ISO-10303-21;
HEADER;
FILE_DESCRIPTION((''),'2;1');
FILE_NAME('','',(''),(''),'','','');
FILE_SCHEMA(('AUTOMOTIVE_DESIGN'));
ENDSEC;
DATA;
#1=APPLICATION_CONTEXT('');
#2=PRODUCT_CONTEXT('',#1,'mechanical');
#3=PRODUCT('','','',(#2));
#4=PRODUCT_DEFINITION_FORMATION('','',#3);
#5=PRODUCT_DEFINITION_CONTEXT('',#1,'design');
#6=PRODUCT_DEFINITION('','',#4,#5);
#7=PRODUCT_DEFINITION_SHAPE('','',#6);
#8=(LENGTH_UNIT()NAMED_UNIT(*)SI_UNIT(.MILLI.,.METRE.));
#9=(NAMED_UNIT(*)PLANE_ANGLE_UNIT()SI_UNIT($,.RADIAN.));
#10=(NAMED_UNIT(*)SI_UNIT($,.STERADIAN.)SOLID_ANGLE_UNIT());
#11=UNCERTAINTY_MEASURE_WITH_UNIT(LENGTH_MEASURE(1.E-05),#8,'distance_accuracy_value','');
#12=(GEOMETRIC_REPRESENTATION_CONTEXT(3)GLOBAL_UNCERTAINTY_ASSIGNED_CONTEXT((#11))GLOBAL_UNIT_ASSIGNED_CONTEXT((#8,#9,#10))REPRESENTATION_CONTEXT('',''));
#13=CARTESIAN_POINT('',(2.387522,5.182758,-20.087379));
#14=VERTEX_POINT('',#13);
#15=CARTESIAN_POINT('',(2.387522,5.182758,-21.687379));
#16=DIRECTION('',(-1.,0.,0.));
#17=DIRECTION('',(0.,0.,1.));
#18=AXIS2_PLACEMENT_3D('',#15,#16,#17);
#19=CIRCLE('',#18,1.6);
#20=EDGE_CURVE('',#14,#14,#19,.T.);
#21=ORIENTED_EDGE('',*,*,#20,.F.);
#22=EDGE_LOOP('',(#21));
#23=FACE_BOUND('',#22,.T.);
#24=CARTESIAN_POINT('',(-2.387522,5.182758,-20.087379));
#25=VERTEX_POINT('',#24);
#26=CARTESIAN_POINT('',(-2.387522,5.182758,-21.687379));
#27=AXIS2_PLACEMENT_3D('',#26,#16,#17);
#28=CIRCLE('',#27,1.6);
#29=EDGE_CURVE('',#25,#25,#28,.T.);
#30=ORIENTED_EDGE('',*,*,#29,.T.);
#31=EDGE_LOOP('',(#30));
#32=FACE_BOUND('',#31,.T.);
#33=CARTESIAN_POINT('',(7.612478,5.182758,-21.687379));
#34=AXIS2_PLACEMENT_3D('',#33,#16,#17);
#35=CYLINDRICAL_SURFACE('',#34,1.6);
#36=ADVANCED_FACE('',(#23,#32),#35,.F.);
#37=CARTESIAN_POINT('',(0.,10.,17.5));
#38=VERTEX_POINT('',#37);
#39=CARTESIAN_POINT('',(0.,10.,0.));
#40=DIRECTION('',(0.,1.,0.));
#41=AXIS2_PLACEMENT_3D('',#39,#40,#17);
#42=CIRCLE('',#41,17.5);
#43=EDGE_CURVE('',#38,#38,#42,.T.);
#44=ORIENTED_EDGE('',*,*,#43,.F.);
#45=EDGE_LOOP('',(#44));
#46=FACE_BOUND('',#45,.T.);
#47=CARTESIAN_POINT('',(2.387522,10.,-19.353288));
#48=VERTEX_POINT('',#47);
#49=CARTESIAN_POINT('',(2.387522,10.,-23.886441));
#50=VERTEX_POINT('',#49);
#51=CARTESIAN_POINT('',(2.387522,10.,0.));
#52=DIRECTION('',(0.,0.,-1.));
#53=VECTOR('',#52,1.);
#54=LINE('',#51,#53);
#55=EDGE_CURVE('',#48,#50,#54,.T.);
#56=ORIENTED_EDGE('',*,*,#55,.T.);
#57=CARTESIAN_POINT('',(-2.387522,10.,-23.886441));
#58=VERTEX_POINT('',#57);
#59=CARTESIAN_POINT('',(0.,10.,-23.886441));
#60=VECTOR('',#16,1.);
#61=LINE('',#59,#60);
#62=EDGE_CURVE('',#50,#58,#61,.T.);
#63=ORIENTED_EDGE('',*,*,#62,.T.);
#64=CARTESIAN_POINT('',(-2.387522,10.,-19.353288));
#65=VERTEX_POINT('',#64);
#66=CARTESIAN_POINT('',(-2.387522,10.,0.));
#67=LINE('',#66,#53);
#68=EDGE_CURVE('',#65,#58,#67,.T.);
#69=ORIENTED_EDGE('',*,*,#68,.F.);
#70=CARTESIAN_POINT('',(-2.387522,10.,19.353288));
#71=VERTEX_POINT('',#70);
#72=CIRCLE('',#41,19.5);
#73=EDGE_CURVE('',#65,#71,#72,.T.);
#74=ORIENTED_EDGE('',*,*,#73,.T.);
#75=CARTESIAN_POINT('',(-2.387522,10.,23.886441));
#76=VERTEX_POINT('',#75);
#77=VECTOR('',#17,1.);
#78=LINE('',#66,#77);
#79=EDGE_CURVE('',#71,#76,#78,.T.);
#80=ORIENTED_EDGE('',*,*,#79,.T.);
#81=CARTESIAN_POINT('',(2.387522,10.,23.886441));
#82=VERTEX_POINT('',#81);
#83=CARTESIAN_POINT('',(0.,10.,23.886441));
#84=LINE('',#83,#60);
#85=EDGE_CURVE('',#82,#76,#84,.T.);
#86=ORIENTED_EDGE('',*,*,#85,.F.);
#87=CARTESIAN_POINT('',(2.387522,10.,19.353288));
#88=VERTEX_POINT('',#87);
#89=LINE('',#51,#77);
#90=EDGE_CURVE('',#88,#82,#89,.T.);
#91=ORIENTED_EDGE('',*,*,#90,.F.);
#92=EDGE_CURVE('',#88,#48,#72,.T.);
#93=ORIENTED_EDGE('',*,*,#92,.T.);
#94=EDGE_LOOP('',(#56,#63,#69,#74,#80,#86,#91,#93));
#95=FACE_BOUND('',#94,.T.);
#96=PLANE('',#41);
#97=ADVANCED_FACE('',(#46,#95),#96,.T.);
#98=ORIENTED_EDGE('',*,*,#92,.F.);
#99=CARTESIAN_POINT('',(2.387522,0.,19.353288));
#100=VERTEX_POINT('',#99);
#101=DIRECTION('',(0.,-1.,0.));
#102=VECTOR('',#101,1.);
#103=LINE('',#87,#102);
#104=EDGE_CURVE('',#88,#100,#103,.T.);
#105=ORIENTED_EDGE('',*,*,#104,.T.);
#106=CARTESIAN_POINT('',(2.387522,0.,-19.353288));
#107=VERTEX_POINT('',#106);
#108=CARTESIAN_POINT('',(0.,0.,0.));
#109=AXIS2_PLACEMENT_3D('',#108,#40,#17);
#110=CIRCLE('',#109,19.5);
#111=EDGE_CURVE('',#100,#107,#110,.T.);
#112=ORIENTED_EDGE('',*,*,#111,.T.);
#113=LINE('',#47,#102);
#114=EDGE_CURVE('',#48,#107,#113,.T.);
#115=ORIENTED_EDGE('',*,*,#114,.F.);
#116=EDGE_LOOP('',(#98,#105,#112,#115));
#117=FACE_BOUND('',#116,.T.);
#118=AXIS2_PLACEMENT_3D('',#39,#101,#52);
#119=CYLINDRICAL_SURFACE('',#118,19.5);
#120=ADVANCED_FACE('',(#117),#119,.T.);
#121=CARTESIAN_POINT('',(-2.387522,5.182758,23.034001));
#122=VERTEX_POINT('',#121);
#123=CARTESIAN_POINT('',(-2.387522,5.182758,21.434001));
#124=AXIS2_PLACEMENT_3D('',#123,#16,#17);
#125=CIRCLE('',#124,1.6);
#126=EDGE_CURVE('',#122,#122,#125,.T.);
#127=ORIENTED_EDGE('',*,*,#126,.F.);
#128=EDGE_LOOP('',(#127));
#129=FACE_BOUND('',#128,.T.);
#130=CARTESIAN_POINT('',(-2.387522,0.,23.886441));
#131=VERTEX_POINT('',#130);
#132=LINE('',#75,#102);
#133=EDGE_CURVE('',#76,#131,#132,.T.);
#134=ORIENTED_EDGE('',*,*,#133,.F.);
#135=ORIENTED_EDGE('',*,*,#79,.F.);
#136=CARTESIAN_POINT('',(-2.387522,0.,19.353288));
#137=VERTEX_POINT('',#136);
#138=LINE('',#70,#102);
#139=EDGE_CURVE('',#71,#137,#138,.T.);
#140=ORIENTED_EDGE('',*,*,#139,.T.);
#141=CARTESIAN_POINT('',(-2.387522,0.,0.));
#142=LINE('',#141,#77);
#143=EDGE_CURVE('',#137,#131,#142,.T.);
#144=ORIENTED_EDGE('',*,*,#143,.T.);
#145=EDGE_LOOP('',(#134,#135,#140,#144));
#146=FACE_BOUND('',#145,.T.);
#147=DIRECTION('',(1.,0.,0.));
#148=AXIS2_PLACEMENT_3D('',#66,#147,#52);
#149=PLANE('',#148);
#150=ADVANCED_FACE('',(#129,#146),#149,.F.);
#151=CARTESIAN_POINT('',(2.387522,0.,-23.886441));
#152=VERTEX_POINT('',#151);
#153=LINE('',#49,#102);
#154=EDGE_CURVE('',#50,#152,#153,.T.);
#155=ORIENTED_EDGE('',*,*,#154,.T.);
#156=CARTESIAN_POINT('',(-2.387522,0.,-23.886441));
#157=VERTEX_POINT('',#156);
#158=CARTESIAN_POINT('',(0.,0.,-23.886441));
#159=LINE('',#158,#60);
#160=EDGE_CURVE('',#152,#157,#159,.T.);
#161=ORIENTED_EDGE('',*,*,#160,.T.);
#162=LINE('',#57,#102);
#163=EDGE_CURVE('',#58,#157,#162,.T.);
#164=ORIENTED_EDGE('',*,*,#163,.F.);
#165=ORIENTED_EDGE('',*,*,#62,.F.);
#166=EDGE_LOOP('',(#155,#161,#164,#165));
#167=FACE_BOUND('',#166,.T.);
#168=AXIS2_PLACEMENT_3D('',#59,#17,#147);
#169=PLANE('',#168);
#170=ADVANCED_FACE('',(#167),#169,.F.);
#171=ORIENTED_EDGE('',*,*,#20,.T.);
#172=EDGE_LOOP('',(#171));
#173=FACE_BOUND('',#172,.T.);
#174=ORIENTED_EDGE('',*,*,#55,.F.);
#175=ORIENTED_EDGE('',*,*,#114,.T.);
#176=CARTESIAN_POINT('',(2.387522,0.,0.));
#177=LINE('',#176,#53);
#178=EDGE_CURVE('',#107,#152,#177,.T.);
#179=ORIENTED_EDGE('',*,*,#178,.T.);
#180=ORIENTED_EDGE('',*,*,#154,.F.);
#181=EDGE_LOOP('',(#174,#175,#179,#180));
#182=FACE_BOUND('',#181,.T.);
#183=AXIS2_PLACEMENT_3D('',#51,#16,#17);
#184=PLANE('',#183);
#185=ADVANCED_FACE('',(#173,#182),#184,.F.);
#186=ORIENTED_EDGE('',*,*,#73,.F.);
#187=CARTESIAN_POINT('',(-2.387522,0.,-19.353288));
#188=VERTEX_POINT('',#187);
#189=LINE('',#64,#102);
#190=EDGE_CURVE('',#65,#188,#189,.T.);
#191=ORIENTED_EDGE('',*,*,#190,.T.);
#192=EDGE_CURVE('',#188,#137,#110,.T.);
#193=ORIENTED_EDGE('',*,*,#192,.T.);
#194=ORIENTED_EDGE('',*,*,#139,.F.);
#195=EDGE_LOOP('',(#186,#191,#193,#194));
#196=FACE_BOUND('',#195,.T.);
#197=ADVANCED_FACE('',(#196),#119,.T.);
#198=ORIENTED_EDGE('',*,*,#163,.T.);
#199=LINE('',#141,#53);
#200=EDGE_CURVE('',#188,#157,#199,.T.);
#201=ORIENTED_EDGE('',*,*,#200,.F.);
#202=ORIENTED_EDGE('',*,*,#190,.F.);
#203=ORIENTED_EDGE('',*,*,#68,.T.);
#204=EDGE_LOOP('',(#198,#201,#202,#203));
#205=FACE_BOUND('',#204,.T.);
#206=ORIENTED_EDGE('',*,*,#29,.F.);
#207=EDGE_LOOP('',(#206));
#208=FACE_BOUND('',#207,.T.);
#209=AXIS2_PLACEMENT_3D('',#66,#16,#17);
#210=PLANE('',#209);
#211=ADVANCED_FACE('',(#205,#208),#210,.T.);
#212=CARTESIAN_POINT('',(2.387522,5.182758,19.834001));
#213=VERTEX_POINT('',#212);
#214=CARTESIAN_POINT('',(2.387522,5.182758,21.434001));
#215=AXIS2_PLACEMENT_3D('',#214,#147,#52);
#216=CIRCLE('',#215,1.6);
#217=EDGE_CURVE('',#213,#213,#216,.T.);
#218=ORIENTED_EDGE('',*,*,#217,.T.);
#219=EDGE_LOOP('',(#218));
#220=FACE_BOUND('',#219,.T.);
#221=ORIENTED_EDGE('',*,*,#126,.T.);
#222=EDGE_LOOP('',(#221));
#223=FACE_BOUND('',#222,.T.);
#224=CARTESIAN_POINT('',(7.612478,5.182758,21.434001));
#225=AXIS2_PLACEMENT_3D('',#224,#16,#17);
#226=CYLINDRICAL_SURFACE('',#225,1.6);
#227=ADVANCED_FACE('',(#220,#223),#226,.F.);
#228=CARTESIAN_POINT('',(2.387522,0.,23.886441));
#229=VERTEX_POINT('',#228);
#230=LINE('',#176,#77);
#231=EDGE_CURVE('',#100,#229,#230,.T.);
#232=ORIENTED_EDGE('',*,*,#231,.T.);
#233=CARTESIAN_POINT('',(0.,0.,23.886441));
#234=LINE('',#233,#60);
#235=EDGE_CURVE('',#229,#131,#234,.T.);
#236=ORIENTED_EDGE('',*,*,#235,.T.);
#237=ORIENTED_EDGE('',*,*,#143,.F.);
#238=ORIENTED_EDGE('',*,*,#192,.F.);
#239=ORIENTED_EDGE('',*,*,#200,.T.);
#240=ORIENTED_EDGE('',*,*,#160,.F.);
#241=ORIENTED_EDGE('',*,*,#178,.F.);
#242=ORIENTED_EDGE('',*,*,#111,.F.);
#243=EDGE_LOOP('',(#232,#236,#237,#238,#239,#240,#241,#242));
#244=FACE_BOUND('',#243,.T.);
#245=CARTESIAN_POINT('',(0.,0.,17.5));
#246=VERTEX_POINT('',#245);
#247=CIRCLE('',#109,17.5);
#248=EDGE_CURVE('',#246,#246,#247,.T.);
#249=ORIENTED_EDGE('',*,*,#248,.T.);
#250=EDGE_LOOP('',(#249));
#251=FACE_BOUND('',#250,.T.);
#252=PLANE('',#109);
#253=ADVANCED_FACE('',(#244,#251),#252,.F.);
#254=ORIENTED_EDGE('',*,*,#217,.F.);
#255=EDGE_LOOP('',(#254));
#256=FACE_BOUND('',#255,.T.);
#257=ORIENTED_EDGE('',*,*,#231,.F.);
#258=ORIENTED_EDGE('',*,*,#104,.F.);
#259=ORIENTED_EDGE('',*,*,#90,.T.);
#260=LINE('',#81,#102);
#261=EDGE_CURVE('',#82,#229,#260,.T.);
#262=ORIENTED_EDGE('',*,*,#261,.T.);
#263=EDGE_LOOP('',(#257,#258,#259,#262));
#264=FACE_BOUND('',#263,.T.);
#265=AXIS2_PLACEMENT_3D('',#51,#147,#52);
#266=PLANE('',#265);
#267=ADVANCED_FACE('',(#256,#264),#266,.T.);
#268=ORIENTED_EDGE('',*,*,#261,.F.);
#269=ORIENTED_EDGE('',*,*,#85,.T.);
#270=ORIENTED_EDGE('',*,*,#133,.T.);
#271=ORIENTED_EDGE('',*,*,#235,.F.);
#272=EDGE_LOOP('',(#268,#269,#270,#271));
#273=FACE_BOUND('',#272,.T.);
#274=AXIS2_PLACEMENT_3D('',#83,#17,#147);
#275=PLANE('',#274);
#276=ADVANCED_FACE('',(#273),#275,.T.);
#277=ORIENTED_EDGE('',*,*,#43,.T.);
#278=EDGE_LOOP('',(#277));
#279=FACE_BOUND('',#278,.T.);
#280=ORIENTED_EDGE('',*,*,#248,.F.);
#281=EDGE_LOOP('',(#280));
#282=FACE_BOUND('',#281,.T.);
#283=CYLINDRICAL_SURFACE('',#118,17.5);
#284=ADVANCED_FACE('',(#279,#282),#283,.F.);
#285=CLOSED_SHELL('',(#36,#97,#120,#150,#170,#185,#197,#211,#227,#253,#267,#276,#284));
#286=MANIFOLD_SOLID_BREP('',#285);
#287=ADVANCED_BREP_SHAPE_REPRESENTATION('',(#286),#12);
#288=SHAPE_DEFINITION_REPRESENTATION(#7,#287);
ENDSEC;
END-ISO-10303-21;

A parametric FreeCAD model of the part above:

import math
import FreeCAD as App
import Part
import Sketcher

V = App.Vector

doc = App.newDocument("Part")
body = doc.addObject("PartDesign::Body", "Body")

# Sketch on XZ plane
sketch1 = body.newObject("Sketcher::SketchObject", "Sketch")
sketch1.AttachmentSupport = (doc.getObject("XZ_Plane"), [""])
sketch1.MapMode = "FlatFace"
sketch1.addGeometry([
    Part.LineSegment(V(2.387522, -19.353288, 0), V(2.387522, -23.886441, 0)),  # 0
    Part.LineSegment(V(2.387522, -23.886441, 0), V(-2.387522, -23.886441, 0)),  # 1
    Part.LineSegment(V(-2.387522, -23.886441, 0), V(-2.387522, -19.353288, 0)),  # 2
    Part.ArcOfCircle(Part.Circle(V(0, 0, 0), V(0, 0, 1), 19.5), math.radians(97.032772), math.radians(262.967228)),  # 3
    Part.LineSegment(V(-2.387522, 19.353288, 0), V(-2.387522, 23.886441, 0)),  # 4
    Part.LineSegment(V(-2.387522, 23.886441, 0), V(2.387522, 23.886441, 0)),  # 5
    Part.LineSegment(V(2.387522, 23.886441, 0), V(2.387522, 19.353288, 0)),  # 6
    Part.ArcOfCircle(Part.Circle(V(0, 0, 0), V(0, 0, 1), 19.5), math.radians(-82.967228), math.radians(82.967228)),  # 7
    Part.Circle(V(0, 0, 0), V(0, 0, 1), 17.5),  # 8
], False)
sketch1.addConstraint([
    Sketcher.Constraint("Coincident", 0, 2, 1, 1),
    Sketcher.Constraint("Coincident", 1, 2, 2, 1),
    Sketcher.Constraint("Coincident", 2, 2, 3, 2),
    Sketcher.Constraint("Coincident", 3, 1, 4, 1),
    Sketcher.Constraint("Coincident", 4, 2, 5, 1),
    Sketcher.Constraint("Coincident", 5, 2, 6, 1),
    Sketcher.Constraint("Coincident", 6, 2, 7, 2),
    Sketcher.Constraint("Coincident", 7, 1, 0, 1),
    Sketcher.Constraint("Vertical", 0),
    Sketcher.Constraint("Horizontal", 1),
    Sketcher.Constraint("Vertical", 2),
    Sketcher.Constraint("Vertical", 4),
    Sketcher.Constraint("Horizontal", 5),
    Sketcher.Constraint("Vertical", 6),
    Sketcher.Constraint("Coincident", 3, 3, -1, 1),
    Sketcher.Constraint("Coincident", 7, 3, -1, 1),
    Sketcher.Constraint("Coincident", 8, 3, -1, 1),
    Sketcher.Constraint("Equal", 3, 7),
    Sketcher.Constraint("Symmetric", 0, 2, 4, 2, -1, 1),
    Sketcher.Constraint("Horizontal", 3, 1, 6, 2),
    Sketcher.Constraint("Horizontal", 2, 2, 7, 1),
    Sketcher.Constraint("Diameter", 8, 35.0),
    Sketcher.Constraint("Radius", 3, 19.5),
    Sketcher.Constraint("DistanceX", 1, 2, 1, 1, 4.775044),
    Sketcher.Constraint("DistanceY", 0, 2, 0, 1, 4.533154),
])
pad1 = body.newObject("PartDesign::Pad", "Pad")
pad1.Profile = sketch1
pad1.Length = 10
pad1.Reversed = True

# Sketch on YZ plane
sketch2 = body.newObject("Sketcher::SketchObject", "Sketch001")
sketch2.AttachmentSupport = (doc.getObject("YZ_Plane"), [""])
sketch2.MapMode = "FlatFace"
sketch2.AttachmentOffset = App.Placement(V(0, 0, -2.387522), App.Rotation())
sketch2.addGeometry([
    Part.Circle(V(5.182758, -21.687379, 0), V(0, 0, 1), 1.6),
    Part.Circle(V(5.182758, 21.434001, 0), V(0, 0, 1), 1.6),
], False)
sketch2.addConstraint([
    Sketcher.Constraint("Equal", 0, 1),
    Sketcher.Constraint("Vertical", 0, 3, 1, 3),
    Sketcher.Constraint("Diameter", 0, 3.2),
    Sketcher.Constraint("DistanceY", -1, 1, 1, 3, 21.434001),
    Sketcher.Constraint("DistanceY", 0, 3, -1, 1, 21.687379),
    Sketcher.Constraint("DistanceX", -1, 1, 0, 3, 5.182758),
])
pocket1 = body.newObject("PartDesign::Pocket", "Pocket")
pocket1.Profile = sketch2
pocket1.Length = 10
pocket1.Reversed = True

doc.recompute()
